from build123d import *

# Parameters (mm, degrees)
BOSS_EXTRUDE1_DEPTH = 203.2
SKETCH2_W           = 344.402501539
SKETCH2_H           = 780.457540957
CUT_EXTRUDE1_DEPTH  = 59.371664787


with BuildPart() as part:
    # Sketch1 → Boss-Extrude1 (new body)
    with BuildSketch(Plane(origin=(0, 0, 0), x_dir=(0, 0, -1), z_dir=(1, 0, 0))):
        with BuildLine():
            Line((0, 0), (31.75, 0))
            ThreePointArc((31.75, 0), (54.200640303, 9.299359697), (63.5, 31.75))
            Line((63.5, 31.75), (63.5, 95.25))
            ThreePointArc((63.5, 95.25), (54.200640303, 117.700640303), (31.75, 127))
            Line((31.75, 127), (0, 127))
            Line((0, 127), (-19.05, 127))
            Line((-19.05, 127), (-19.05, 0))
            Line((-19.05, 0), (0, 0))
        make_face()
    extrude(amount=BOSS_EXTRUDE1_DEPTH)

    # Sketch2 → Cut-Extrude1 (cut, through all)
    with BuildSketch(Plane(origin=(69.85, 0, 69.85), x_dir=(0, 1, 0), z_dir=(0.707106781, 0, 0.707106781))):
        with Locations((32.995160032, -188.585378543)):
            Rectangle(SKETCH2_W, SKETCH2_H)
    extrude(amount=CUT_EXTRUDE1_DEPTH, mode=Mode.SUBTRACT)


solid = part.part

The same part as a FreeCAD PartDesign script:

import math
import FreeCAD as App
import Part
import Sketcher
Q = App.Units.Quantity


def add_polygon(sketch, points):
    """Adds a closed chain of lines whose ends are joined by coincident constraints."""
    first, n = sketch.GeometryCount, len(points)
    for a, b in zip(points, points[1:] + points[:1]):
        sketch.addGeometry(Part.LineSegment(App.Vector(*a, 0), App.Vector(*b, 0)), False)
    for i in range(n):
        sketch.addConstraint(Sketcher.Constraint("Coincident", first + i, 2, first + (i + 1) % n, 1))

doc = App.newDocument("Part")
body = doc.addObject("PartDesign::Body", "Body")

# Sketch on YZ plane
sketch1 = body.newObject("Sketcher::SketchObject", "Sketch")
sketch1.AttachmentSupport = (doc.getObject("YZ_Plane"), [""])
sketch1.MapMode = "FlatFace"
sketch1.addGeometry(Part.ArcOfCircle(Part.Circle(App.Vector(32, -32, 0), App.Vector(0, 0, 1), 32), math.radians(180), math.radians(270)), False)
sketch1.addGeometry(Part.LineSegment(App.Vector(32, -64, 0), App.Vector(95, -64, 0)), False)
sketch1.addGeometry(Part.ArcOfCircle(Part.Circle(App.Vector(95, -32, 0), App.Vector(0, 0, 1), 32), math.radians(-90), math.radians(0)), False)
sketch1.addGeometry(Part.LineSegment(App.Vector(127, -32, 0), App.Vector(127, 19, 0)), False)
sketch1.addGeometry(Part.LineSegment(App.Vector(127, 19, 0), App.Vector(0, 19, 0)), False)
sketch1.addGeometry(Part.LineSegment(App.Vector(0, 19, 0), App.Vector(0, -32, 0)), False)
sketch1.addConstraint(Sketcher.Constraint("Tangent", 0, 2, 1, 1))
sketch1.addConstraint(Sketcher.Constraint("Tangent", 1, 2, 2, 1))
sketch1.addConstraint(Sketcher.Constraint("Tangent", 2, 2, 3, 1))
sketch1.addConstraint(Sketcher.Constraint("Coincident", 3, 2, 4, 1))
sketch1.addConstraint(Sketcher.Constraint("Coincident", 4, 2, 5, 1))
sketch1.addConstraint(Sketcher.Constraint("Tangent", 5, 2, 0, 1))
sketch1.addConstraint(Sketcher.Constraint("Horizontal", 1))
sketch1.addConstraint(Sketcher.Constraint("Vertical", 3))
sketch1.addConstraint(Sketcher.Constraint("Horizontal", 4))
sketch1.addConstraint(Sketcher.Constraint("Vertical", 5))
sketch1.addConstraint(Sketcher.Constraint("Equal", 0, 2))
sketch1.addConstraint(Sketcher.Constraint("PointOnObject", 4, 2, -2))
sketch1.addConstraint(Sketcher.Constraint("DistanceX", 4, 2, 4, 1, Q("5 in")))
sketch1.addConstraint(Sketcher.Constraint("DistanceY", 3, 1, 3, 2, Q("2 in")))
sketch1.addConstraint(Sketcher.Constraint("Radius", 0, Q("1.25 in")))
sketch1.addConstraint(Sketcher.Constraint("DistanceY", 0, 2, -1, 1, Q("2.5 in")))
pad1 = body.newObject("PartDesign::Pad", "Pad")
pad1.Profile = sketch1
pad1.Length = Q("8 in")

# Sketch on an angled plane
sketch2 = body.newObject("Sketcher::SketchObject", "Sketch001")
sketch2.Placement = App.Placement(App.Vector(69.85, 0, 69.85), App.Rotation(App.Vector(0, 1, 0), App.Vector(-0.707106781, 0, 0.707106781), App.Vector(0.707106781, 0, 0.707106781), "ZXY"))
add_polygon(sketch2, [(-139, 202), (-139, -579), (205, -579), (205, 202)])  # lines 0-3
sketch2.addConstraint(Sketcher.Constraint("Vertical", 0))
sketch2.addConstraint(Sketcher.Constraint("Horizontal", 1))
sketch2.addConstraint(Sketcher.Constraint("Vertical", 2))
sketch2.addConstraint(Sketcher.Constraint("Horizontal", 3))
sketch2.addConstraint(Sketcher.Constraint("DistanceX", 1, 1, 1, 2, 344.402502))
sketch2.addConstraint(Sketcher.Constraint("DistanceY", 0, 2, 0, 1, 780.457541))
sketch2.addConstraint(Sketcher.Constraint("DistanceX", 0, 2, -1, 1, 139.206091))
sketch2.addConstraint(Sketcher.Constraint("DistanceY", 0, 2, -1, 1, 578.814149))
pocket1 = body.newObject("PartDesign::Pocket", "Pocket")
pocket1.Profile = sketch2
pocket1.Type = "ThroughAll"
pocket1.Reversed = True

doc.recompute()
